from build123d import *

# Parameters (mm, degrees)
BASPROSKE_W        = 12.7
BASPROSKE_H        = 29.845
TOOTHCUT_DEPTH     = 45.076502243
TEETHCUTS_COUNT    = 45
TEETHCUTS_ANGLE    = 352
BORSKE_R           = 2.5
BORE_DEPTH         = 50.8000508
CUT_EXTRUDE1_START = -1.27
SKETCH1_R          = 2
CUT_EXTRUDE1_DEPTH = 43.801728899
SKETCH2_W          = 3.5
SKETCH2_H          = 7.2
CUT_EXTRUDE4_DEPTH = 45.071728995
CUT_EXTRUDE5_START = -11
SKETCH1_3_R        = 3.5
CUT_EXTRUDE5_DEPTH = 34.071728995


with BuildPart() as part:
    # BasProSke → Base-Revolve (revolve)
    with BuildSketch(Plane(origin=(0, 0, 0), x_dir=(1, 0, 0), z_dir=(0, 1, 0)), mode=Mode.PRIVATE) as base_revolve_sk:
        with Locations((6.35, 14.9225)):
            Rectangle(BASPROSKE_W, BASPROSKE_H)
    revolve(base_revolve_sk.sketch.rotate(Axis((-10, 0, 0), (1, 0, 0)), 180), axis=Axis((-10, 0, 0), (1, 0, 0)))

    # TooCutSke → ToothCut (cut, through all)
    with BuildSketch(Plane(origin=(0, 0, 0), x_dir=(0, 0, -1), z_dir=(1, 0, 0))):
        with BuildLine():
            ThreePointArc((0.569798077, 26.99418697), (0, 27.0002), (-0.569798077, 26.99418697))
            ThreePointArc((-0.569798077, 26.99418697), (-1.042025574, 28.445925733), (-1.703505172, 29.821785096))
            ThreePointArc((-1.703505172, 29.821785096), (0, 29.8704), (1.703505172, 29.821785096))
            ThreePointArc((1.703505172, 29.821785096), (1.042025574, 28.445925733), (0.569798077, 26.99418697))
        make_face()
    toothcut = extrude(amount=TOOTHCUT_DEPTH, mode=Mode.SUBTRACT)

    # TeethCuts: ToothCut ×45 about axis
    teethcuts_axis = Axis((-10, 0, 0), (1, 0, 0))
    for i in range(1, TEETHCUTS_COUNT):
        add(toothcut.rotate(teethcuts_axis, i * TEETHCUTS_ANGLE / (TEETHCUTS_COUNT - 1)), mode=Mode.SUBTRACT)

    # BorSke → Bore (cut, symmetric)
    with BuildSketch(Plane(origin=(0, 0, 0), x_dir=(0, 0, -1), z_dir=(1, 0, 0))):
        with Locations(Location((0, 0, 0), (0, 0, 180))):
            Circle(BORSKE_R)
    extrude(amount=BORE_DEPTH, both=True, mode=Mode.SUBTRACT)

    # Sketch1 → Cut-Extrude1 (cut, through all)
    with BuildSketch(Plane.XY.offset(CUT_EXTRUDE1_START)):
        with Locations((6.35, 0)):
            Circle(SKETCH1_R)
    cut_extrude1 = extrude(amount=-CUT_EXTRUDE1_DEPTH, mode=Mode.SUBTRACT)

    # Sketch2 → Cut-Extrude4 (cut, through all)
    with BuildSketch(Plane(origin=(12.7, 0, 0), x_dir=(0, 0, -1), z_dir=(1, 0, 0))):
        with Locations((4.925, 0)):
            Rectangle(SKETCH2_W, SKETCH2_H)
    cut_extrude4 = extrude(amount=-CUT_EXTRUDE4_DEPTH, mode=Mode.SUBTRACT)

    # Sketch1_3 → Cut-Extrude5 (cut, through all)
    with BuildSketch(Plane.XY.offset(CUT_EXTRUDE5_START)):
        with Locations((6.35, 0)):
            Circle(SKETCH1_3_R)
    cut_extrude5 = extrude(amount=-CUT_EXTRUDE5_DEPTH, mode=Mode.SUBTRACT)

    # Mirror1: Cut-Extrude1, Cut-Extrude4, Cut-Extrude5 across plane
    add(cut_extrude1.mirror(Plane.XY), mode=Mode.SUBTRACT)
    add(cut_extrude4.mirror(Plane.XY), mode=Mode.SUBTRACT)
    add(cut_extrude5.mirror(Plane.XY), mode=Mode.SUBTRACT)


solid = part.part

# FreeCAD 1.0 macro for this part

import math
import FreeCAD as App
import Part
import Sketcher
from FreeCAD import Vector


def add_polygon(sketch, points):
    """Adds a closed chain of lines whose ends are joined by coincident constraints."""
    first, n = sketch.GeometryCount, len(points)
    for a, b in zip(points, points[1:] + points[:1]):
        sketch.addGeometry(Part.LineSegment(App.Vector(*a, 0), App.Vector(*b, 0)), False)
    for i in range(n):
        sketch.addConstraint(Sketcher.Constraint("Coincident", first + i, 2, first + (i + 1) % n, 1))

doc = App.newDocument("Part")
params = doc.addObject("Spreadsheet::Sheet", "Params")
for row, (alias, value) in enumerate([
    ("sketch1_width", "12.7 mm"),
    ("revolution_angle", "360 deg"),
    ("sketch2_radius", "11.43 mm"),
    ("sketch3_diameter", "5 mm"),
    ("pocket2_length", "101.600102 mm"),
    ("sketch4_diameter", "4 mm"),
    ("sketch5_width", "7.2 mm"),
    ("sketch5_height", "3.5 mm"),
    ("sketch6_diameter", "7 mm"),
], start=1):
    params.set(f"A{row}", alias)
    params.set(f"B{row}", "=" + value)
    params.setAlias(f"B{row}", alias)

body = doc.addObject("PartDesign::Body", "Body")

sketch1 = doc.addObject("Sketcher::SketchObject", "Sketch")
body.addObject(sketch1)
sketch1.AttachmentSupport = (doc.XZ_Plane, [""])
sketch1.MapMode = "FlatFace"
add_polygon(sketch1, [(0, -30), (0, 0), (13, 0), (13, -30)])
sketch1.addConstraint([
    Sketcher.Constraint("Vertical", 0),
    Sketcher.Constraint("Horizontal", 1),
    Sketcher.Constraint("Vertical", 2),
    Sketcher.Constraint("Horizontal", 3),
    Sketcher.Constraint("Coincident", 0, 2, -1, 1),
    Sketcher.Constraint("DistanceX", 1, 1, 1, 2, 12.7),
    Sketcher.Constraint("DistanceY", 0, 1, 0, 2, 29.845),
])
sketch1.setExpression("Constraints[9]", "Params.sketch1_width")
revolution = doc.addObject("PartDesign::Revolution", "Revolution")
body.addObject(revolution)
revolution.Profile = sketch1
revolution.ReferenceAxis = (sketch1, ["H_Axis"])
revolution.setExpression("Angle", "Params.revolution_angle")

sketch2 = doc.addObject("Sketcher::SketchObject", "Sketch001")
body.addObject(sketch2)
sketch2.AttachmentSupport = (doc.YZ_Plane, [""])
sketch2.MapMode = "FlatFace"
sketch2.addGeometry([
    Part.ArcOfCircle(Part.Circle(Vector(0, 0, 0), Vector(0, 0, 1), 27), math.radians(-1.21), math.radians(1.21)),
    Part.ArcOfCircle(Part.Circle(Vector(24.2, -11.7, 0), Vector(0, 0, 1), 11.4), math.radians(60.49), math.radians(75.81)),
    Part.ArcOfCircle(Part.Circle(Vector(0, 0, 0), Vector(0, 0, 1), 29.9), math.radians(-3.27), math.radians(3.27)),
    Part.ArcOfCircle(Part.Circle(Vector(24.2, 11.7, 0), Vector(0, 0, 1), 11.4), math.radians(-75.81), math.radians(-60.49)),
], False)
sketch2.addConstraint([
    Sketcher.Constraint("Coincident", 0, 1, 1, 2),
    Sketcher.Constraint("Coincident", 1, 1, 2, 1),
    Sketcher.Constraint("Coincident", 2, 2, 3, 2),
    Sketcher.Constraint("Coincident", 3, 1, 0, 2),
    Sketcher.Constraint("Coincident", 0, 3, -1, 1),
    Sketcher.Constraint("Coincident", 2, 3, -1, 1),
    Sketcher.Constraint("Equal", 1, 3),
    Sketcher.Constraint("Symmetric", 1, 3, 3, 3, -1),
    Sketcher.Constraint("Radius", 1, 11.43),
    Sketcher.Constraint("Radius", 0, 27.000198),
    Sketcher.Constraint("Radius", 2, 29.8704),
    Sketcher.Constraint("DistanceY", 0, 1, -1, 1, 0.569798),
    Sketcher.Constraint("DistanceX", 0, 3, 1, 3, 24.192301),
])
sketch2.setExpression("Constraints[8]", "Params.sketch2_radius")
pocket1 = doc.addObject("PartDesign::Pocket", "Pocket")
body.addObject(pocket1)
pocket1.Profile = sketch2
pocket1.Type = "ThroughAll"
pocket1.Reversed = True
doc.recompute()

polarpattern = doc.addObject("PartDesign::PolarPattern", "PolarPattern")
body.addObject(polarpattern)
polarpattern.Originals = [pocket1]
polarpattern.Axis = (doc.X_Axis, [""])
polarpattern.Angle = 360
polarpattern.Occurrences = 45
body.Tip = polarpattern

sketch3 = doc.addObject("Sketcher::SketchObject", "Sketch002")
body.addObject(sketch3)
sketch3.AttachmentSupport = (doc.YZ_Plane, [""])
sketch3.MapMode = "FlatFace"
sketch3.addGeometry(Part.Circle(Vector(0, 0, 0), Vector(0, 0, 1), 2.5), False)
sketch3.addConstraint([
    Sketcher.Constraint("Coincident", 0, 3, -1, 1),
    Sketcher.Constraint("Diameter", 0, 5.0),
])
sketch3.setExpression("Constraints[1]", "Params.sketch3_diameter")
pocket2 = doc.addObject("PartDesign::Pocket", "Pocket001")
body.addObject(pocket2)
pocket2.Profile = sketch3
pocket2.setExpression("Length", "Params.pocket2_length")
pocket2.Midplane = True

sketch4 = doc.addObject("Sketcher::SketchObject", "Sketch003")
body.addObject(sketch4)
sketch4.AttachmentSupport = (doc.XY_Plane, [""])
sketch4.MapMode = "FlatFace"
sketch4.AttachmentOffset = App.Placement(Vector(0, 0, -1.27), App.Rotation())
sketch4.addGeometry(Part.Circle(Vector(6.3, 0, 0), Vector(0, 0, 1), 2), False)
sketch4.addConstraint([
    Sketcher.Constraint("PointOnObject", 0, 3, -1),
    Sketcher.Constraint("Diameter", 0, 4.0),
    Sketcher.Constraint("DistanceX", -1, 1, 0, 3, 6.35),
])
sketch4.setExpression("Constraints[1]", "Params.sketch4_diameter")
pocket3 = doc.addObject("PartDesign::Pocket", "Pocket002")
body.addObject(pocket3)
pocket3.Profile = sketch4
pocket3.Type = "ThroughAll"

sketch5 = doc.addObject("Sketcher::SketchObject", "Sketch004")
body.addObject(sketch5)
sketch5.AttachmentSupport = (doc.YZ_Plane, [""])
sketch5.MapMode = "FlatFace"
sketch5.AttachmentOffset = App.Placement(Vector(0, 0, 12.7), App.Rotation())
add_polygon(sketch5, [(3.6, -3.2), (-3.6, -3.2), (-3.6, -6.7), (3.6, -6.7)])
sketch5.addConstraint([
    Sketcher.Constraint("Horizontal", 0),
    Sketcher.Constraint("Vertical", 1),
    Sketcher.Constraint("Horizontal", 2),
    Sketcher.Constraint("Vertical", 3),
    Sketcher.Constraint("DistanceX", 0, 2, 0, 1, 7.2),
    Sketcher.Constraint("DistanceY", 1, 2, 1, 1, 3.5),
    Sketcher.Constraint("DistanceX", 0, 2, -1, 1, 3.6),
    Sketcher.Constraint("DistanceY", 0, 2, -1, 1, 3.175),
])
sketch5.setExpression("Constraints[8]", "Params.sketch5_width")
sketch5.setExpression("Constraints[9]", "Params.sketch5_height")
pocket4 = doc.addObject("PartDesign::Pocket", "Pocket003")
body.addObject(pocket4)
pocket4.Profile = sketch5
pocket4.Type = "ThroughAll"

sketch6 = doc.addObject("Sketcher::SketchObject", "Sketch005")
body.addObject(sketch6)
sketch6.AttachmentSupport = (doc.XY_Plane, [""])
sketch6.MapMode = "FlatFace"
sketch6.AttachmentOffset = App.Placement(Vector(0, 0, -11), App.Rotation())
sketch6.addGeometry(Part.Circle(Vector(6.3, 0, 0), Vector(0, 0, 1), 3.5), False)
sketch6.addConstraint([
    Sketcher.Constraint("PointOnObject", 0, 3, -1),
    Sketcher.Constraint("Diameter", 0, 7.0),
    Sketcher.Constraint("DistanceX", -1, 1, 0, 3, 6.35),
])
sketch6.setExpression("Constraints[1]", "Params.sketch6_diameter")
pocket5 = doc.addObject("PartDesign::Pocket", "Pocket004")
body.addObject(pocket5)
pocket5.Profile = sketch6
pocket5.Type = "ThroughAll"
doc.recompute()

mirrored = doc.addObject("PartDesign::Mirrored", "Mirrored")
body.addObject(mirrored)
mirrored.Originals = [pocket3, pocket4, pocket5]
mirrored.MirrorPlane = (doc.XY_Plane, [""])
body.Tip = mirrored

doc.recompute()
